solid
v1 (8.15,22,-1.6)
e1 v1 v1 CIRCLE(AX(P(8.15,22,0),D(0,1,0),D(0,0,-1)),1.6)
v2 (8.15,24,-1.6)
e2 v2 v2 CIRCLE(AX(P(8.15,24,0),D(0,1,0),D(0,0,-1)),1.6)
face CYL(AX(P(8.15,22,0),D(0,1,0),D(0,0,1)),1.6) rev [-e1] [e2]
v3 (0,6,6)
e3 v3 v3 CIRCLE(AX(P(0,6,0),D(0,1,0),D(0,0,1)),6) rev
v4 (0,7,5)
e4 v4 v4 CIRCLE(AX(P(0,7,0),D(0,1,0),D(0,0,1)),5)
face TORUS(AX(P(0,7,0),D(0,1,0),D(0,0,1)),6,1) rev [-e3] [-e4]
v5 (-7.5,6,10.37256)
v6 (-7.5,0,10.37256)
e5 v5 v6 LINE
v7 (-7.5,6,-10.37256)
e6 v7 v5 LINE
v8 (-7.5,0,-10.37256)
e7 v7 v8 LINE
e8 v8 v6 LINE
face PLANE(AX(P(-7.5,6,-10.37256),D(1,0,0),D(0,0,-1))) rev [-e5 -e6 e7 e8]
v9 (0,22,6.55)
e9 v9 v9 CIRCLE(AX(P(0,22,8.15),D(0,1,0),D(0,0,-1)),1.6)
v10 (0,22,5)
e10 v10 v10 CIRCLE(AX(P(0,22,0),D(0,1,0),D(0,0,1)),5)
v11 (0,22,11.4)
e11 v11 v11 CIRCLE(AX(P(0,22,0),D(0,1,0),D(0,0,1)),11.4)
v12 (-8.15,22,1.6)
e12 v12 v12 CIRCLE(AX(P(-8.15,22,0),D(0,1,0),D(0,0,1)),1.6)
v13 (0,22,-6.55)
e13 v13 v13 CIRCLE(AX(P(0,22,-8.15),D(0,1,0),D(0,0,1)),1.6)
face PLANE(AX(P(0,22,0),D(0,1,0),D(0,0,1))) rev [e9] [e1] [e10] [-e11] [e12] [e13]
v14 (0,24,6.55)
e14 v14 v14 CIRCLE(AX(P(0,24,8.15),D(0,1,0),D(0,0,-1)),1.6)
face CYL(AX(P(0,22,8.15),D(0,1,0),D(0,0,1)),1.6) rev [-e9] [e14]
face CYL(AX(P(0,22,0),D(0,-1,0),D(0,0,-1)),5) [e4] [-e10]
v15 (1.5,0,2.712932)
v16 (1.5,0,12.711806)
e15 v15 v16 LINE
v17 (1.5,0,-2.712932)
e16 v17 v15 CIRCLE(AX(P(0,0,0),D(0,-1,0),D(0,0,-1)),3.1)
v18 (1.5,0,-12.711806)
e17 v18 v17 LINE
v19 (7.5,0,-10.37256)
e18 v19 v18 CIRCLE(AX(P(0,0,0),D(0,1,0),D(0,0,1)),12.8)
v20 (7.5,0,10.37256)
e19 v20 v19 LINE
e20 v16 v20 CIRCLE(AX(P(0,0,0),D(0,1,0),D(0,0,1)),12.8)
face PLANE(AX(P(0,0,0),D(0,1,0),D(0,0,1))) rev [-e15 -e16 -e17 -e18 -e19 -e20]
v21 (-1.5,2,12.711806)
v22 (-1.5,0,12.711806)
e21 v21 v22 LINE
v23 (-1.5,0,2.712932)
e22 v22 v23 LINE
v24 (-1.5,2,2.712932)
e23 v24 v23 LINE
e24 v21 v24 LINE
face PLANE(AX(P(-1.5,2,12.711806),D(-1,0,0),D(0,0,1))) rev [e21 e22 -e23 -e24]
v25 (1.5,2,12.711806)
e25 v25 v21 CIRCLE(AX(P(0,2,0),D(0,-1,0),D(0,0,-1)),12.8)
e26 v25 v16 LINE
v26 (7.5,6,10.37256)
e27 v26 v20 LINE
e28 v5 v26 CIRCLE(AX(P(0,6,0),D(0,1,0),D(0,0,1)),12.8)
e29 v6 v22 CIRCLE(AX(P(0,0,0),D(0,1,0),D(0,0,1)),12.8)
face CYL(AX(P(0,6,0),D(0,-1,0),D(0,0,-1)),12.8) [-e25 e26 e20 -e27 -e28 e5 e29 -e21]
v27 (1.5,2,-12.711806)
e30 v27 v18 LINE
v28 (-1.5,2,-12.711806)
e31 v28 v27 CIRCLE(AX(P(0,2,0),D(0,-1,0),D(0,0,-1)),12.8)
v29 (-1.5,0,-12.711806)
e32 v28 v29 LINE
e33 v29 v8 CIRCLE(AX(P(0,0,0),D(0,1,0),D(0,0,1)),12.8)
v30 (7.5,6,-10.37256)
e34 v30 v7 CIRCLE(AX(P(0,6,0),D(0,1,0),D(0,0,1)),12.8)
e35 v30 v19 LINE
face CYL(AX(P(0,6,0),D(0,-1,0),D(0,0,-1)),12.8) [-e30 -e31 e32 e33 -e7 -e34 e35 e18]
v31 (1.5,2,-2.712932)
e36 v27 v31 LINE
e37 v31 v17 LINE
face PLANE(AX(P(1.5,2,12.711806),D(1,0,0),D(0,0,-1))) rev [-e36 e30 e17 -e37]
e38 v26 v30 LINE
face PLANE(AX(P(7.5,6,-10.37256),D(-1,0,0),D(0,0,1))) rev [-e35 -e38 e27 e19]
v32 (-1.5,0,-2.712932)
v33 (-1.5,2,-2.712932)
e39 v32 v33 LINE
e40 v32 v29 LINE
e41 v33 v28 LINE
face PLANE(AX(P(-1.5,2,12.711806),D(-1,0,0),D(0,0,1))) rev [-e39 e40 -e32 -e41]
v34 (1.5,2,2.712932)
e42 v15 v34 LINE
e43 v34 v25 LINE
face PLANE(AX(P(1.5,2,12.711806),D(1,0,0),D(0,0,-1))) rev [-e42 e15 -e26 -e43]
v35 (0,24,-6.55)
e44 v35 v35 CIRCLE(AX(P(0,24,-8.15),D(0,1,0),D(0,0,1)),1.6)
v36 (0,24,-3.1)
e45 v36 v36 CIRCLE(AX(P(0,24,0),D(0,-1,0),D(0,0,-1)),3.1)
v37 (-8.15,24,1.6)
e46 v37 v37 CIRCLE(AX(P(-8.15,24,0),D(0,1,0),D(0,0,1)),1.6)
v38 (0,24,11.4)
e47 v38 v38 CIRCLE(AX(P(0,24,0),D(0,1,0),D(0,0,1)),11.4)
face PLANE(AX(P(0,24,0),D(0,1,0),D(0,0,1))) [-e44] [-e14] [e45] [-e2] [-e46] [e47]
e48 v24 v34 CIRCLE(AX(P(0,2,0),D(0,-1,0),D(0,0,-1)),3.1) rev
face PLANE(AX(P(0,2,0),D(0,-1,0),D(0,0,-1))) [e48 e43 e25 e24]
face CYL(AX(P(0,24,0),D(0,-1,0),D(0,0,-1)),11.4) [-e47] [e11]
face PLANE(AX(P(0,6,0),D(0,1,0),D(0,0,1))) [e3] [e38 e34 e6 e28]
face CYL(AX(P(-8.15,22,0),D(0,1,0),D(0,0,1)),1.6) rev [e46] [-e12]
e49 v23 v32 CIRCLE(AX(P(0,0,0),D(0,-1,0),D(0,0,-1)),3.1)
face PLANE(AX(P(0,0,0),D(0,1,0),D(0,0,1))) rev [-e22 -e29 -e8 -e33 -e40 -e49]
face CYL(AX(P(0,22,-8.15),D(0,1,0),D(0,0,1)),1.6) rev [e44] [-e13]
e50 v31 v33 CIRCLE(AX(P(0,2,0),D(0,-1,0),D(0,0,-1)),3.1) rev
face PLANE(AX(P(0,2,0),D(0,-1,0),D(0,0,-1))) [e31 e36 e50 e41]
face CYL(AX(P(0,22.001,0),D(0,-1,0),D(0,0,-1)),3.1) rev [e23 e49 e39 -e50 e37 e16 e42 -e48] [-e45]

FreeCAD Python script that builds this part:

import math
import FreeCAD as App
import Part
import Sketcher
from FreeCAD import Vector


def edges_at(feature, points):
    """Names of the edges that pass closest to the given points."""
    edges = feature.Shape.Edges
    near = lambda p: min(range(len(edges)), key=lambda i: edges[i].distToShape(Part.Vertex(*p))[0])
    return sorted({f"Edge{near(p) + 1}" for p in points})

doc = App.newDocument("Part")
params = doc.addObject("Spreadsheet::Sheet", "Params")
for row, (alias, value) in enumerate([
    ("sketch1_radius", "12.8 mm"),
    ("pad1_length", "6 mm"),
    ("sketch2_radius", "12.8 mm"),
    ("pocket1_length", "2 mm"),
    ("sketch3_diameter", "10 mm"),
    ("pad2_length", "16 mm"),
    ("sketch4_diameter", "6.2 mm"),
    ("pocket2_length", "22 mm"),
    ("fillet_radius", "1 mm"),
    ("sketch5_diameter", "22.8 mm"),
    ("pad3_length", "2 mm"),
    ("sketch6_diameter", "6.2 mm"),
    ("pocket3_length", "2 mm"),
    ("sketch7_diameter", "3.2 mm"),
    ("pocket4_length", "2 mm"),
], start=1):
    params.set(f"A{row}", alias)
    params.set(f"B{row}", "=" + value)
    params.setAlias(f"B{row}", alias)

body = doc.addObject("PartDesign::Body", "Body")

sketch1 = body.newObject("Sketcher::SketchObject", "Sketch")
sketch1.AttachmentSupport = (doc.getObject("XZ_Plane"), [""])
sketch1.MapMode = "FlatFace"
sketch1.addGeometry(Part.LineSegment(Vector(-8, -10, 0), Vector(-8, 10, 0)), False)
sketch1.addGeometry(Part.ArcOfCircle(Part.Circle(Vector(0, 0, 0), Vector(0, 0, 1), 13), math.radians(54), math.radians(126)), False)
sketch1.addGeometry(Part.LineSegment(Vector(8, 10, 0), Vector(8, -10, 0)), False)
sketch1.addGeometry(Part.ArcOfCircle(Part.Circle(Vector(0, 0, 0), Vector(0, 0, 1), 13), math.radians(-126), math.radians(-54)), False)
sketch1.addConstraint(Sketcher.Constraint("Coincident", 0, 2, 1, 2))
sketch1.addConstraint(Sketcher.Constraint("Coincident", 1, 1, 2, 1))
sketch1.addConstraint(Sketcher.Constraint("Coincident", 2, 2, 3, 2))
sketch1.addConstraint(Sketcher.Constraint("Coincident", 3, 1, 0, 1))
sketch1.addConstraint(Sketcher.Constraint("Vertical", 0))
sketch1.addConstraint(Sketcher.Constraint("Vertical", 2))
sketch1.addConstraint(Sketcher.Constraint("Coincident", 1, 3, -1, 1))
sketch1.addConstraint(Sketcher.Constraint("Coincident", 3, 3, -1, 1))
sketch1.addConstraint(Sketcher.Constraint("Equal", 1, 3))
sketch1.addConstraint(Sketcher.Constraint("Horizontal", 0, 2, 1, 1))
sketch1.addConstraint(Sketcher.Constraint("Radius", 1, 12.8))
sketch1.addConstraint(Sketcher.Constraint("DistanceX", 0, 2, 1, 1, 15.0))
sketch1.setExpression("Constraints[10]", "Params.sketch1_radius")
pad1 = body.newObject("PartDesign::Pad", "Pad")
pad1.Profile = sketch1
pad1.setExpression("Length", "Params.pad1_length")
pad1.Reversed = True

sketch2 = body.newObject("Sketcher::SketchObject", "Sketch001")
sketch2.AttachmentSupport = (doc.getObject("XZ_Plane"), [""])
sketch2.MapMode = "FlatFace"
sketch2.addGeometry(Part.LineSegment(Vector(-1.5, 12.7, 0), Vector(-1.5, -12.7, 0)), False)
sketch2.addGeometry(Part.ArcOfCircle(Part.Circle(Vector(0, 0, 0), Vector(0, 0, 1), 12.8), math.radians(-96.73), math.radians(-83.27)), False)
sketch2.addGeometry(Part.LineSegment(Vector(1.5, -12.7, 0), Vector(1.5, 12.7, 0)), False)
sketch2.addGeometry(Part.ArcOfCircle(Part.Circle(Vector(0, 0, 0), Vector(0, 0, 1), 12.8), math.radians(83.27), math.radians(96.73)), False)
sketch2.addConstraint(Sketcher.Constraint("Coincident", 0, 2, 1, 1))
sketch2.addConstraint(Sketcher.Constraint("Coincident", 1, 2, 2, 1))
sketch2.addConstraint(Sketcher.Constraint("Coincident", 2, 2, 3, 1))
sketch2.addConstraint(Sketcher.Constraint("Coincident", 3, 2, 0, 1))
sketch2.addConstraint(Sketcher.Constraint("Vertical", 0))
sketch2.addConstraint(Sketcher.Constraint("Vertical", 2))
sketch2.addConstraint(Sketcher.Constraint("Coincident", 1, 3, -1, 1))
sketch2.addConstraint(Sketcher.Constraint("Coincident", 3, 3, -1, 1))
sketch2.addConstraint(Sketcher.Constraint("Equal", 1, 3))
sketch2.addConstraint(Sketcher.Constraint("Horizontal", 0, 2, 1, 2))
sketch2.addConstraint(Sketcher.Constraint("Radius", 1, 12.8))
sketch2.addConstraint(Sketcher.Constraint("DistanceX", 0, 2, 1, 2, 3.0))
sketch2.setExpression("Constraints[10]", "Params.sketch2_radius")
pocket1 = body.newObject("PartDesign::Pocket", "Pocket")
pocket1.Profile = sketch2
pocket1.setExpression("Length", "Params.pocket1_length")

sketch3 = body.newObject("Sketcher::SketchObject", "Sketch002")
sketch3.AttachmentSupport = (doc.getObject("XZ_Plane"), [""])
sketch3.MapMode = "FlatFace"
sketch3.AttachmentOffset = App.Placement(Vector(0, 0, -6), App.Rotation())
sketch3.addGeometry(Part.Circle(Vector(0, 0, 0), Vector(0, 0, 1), 5), False)
sketch3.addConstraint(Sketcher.Constraint("Coincident", 0, 3, -1, 1))
sketch3.addConstraint(Sketcher.Constraint("Diameter", 0, 10.0))
sketch3.setExpression("Constraints[1]", "Params.sketch3_diameter")
pad2 = body.newObject("PartDesign::Pad", "Pad001")
pad2.Profile = sketch3
pad2.setExpression("Length", "Params.pad2_length")
pad2.Reversed = True

sketch4 = body.newObject("Sketcher::SketchObject", "Sketch003")
sketch4.AttachmentSupport = (doc.getObject("XZ_Plane"), [""])
sketch4.MapMode = "FlatFace"
sketch4.addGeometry(Part.Circle(Vector(0, 0, 0), Vector(0, 0, 1), 3.1), False)
sketch4.addConstraint(Sketcher.Constraint("Coincident", 0, 3, -1, 1))
sketch4.addConstraint(Sketcher.Constraint("Diameter", 0, 6.2))
sketch4.setExpression("Constraints[1]", "Params.sketch4_diameter")
pocket2 = body.newObject("PartDesign::Pocket", "Pocket001")
pocket2.Profile = sketch4
pocket2.setExpression("Length", "Params.pocket2_length")
doc.recompute()

fillet = body.newObject("PartDesign::Fillet", "Fillet")
fillet.Base = (pocket2, edges_at(pocket2, [(-5, 6, 0)]))
fillet.setExpression("Radius", "Params.fillet_radius")

sketch5 = body.newObject("Sketcher::SketchObject", "Sketch004")
sketch5.AttachmentSupport = (doc.getObject("XZ_Plane"), [""])
sketch5.MapMode = "FlatFace"
sketch5.AttachmentOffset = App.Placement(Vector(0, 0, -22), App.Rotation())
sketch5.addGeometry(Part.Circle(Vector(0, 0, 0), Vector(0, 0, 1), 11), False)
sketch5.addConstraint(Sketcher.Constraint("Coincident", 0, 3, -1, 1))
sketch5.addConstraint(Sketcher.Constraint("Diameter", 0, 22.8))
sketch5.setExpression("Constraints[1]", "Params.sketch5_diameter")
pad3 = body.newObject("PartDesign::Pad", "Pad002")
pad3.Profile = sketch5
pad3.setExpression("Length", "Params.pad3_length")
pad3.Reversed = True

sketch6 = body.newObject("Sketcher::SketchObject", "Sketch005")
sketch6.AttachmentSupport = (doc.getObject("XZ_Plane"), [""])
sketch6.MapMode = "FlatFace"
sketch6.AttachmentOffset = App.Placement(Vector(0, 0, -22), App.Rotation())
sketch6.addGeometry(Part.Circle(Vector(0, 0, 0), Vector(0, 0, 1), 3.1), False)
sketch6.addConstraint(Sketcher.Constraint("Coincident", 0, 3, -1, 1))
sketch6.addConstraint(Sketcher.Constraint("Diameter", 0, 6.2))
sketch6.setExpression("Constraints[1]", "Params.sketch6_diameter")
pocket3 = body.newObject("PartDesign::Pocket", "Pocket002")
pocket3.Profile = sketch6
pocket3.setExpression("Length", "Params.pocket3_length")

sketch7 = body.newObject("Sketcher::SketchObject", "Sketch006")
sketch7.AttachmentSupport = (doc.getObject("XZ_Plane"), [""])
sketch7.MapMode = "FlatFace"
sketch7.AttachmentOffset = App.Placement(Vector(0, 0, -24), App.Rotation())
sketch7.addGeometry(Part.Circle(Vector(0, -8.2, 0), Vector(0, 0, 1), 1.6), False)
sketch7.addGeometry(Part.Circle(Vector(0, 8.2, 0), Vector(0, 0, 1), 1.6), False)
sketch7.addGeometry(Part.Circle(Vector(-8.2, 0, 0), Vector(0, 0, 1), 1.6), False)
sketch7.addGeometry(Part.Circle(Vector(8.2, 0, 0), Vector(0, 0, 1), 1.6), False)
sketch7.addConstraint(Sketcher.Constraint("Equal", 0, 1))
sketch7.addConstraint(Sketcher.Constraint("Equal", 1, 2))
sketch7.addConstraint(Sketcher.Constraint("Equal", 2, 3))
sketch7.addConstraint(Sketcher.Constraint("Symmetric", 0, 3, 1, 3, -1, 1))
sketch7.addConstraint(Sketcher.Constraint("Symmetric", 2, 3, 3, 3, -1, 1))
sketch7.addConstraint(Sketcher.Constraint("PointOnObject", 0, 3, -2))
sketch7.addConstraint(Sketcher.Constraint("PointOnObject", 2, 3, -1))
sketch7.addConstraint(Sketcher.Constraint("Diameter", 0, 3.2))
sketch7.addConstraint(Sketcher.Constraint("DistanceY", 0, 3, 1, 3, 16.3))
sketch7.addConstraint(Sketcher.Constraint("DistanceX", 2, 3, 3, 3, 16.3))
sketch7.setExpression("Constraints[7]", "Params.sketch7_diameter")
pocket4 = body.newObject("PartDesign::Pocket", "Pocket003")
pocket4.Profile = sketch7
pocket4.setExpression("Length", "Params.pocket4_length")
pocket4.Reversed = True

doc.recompute()
